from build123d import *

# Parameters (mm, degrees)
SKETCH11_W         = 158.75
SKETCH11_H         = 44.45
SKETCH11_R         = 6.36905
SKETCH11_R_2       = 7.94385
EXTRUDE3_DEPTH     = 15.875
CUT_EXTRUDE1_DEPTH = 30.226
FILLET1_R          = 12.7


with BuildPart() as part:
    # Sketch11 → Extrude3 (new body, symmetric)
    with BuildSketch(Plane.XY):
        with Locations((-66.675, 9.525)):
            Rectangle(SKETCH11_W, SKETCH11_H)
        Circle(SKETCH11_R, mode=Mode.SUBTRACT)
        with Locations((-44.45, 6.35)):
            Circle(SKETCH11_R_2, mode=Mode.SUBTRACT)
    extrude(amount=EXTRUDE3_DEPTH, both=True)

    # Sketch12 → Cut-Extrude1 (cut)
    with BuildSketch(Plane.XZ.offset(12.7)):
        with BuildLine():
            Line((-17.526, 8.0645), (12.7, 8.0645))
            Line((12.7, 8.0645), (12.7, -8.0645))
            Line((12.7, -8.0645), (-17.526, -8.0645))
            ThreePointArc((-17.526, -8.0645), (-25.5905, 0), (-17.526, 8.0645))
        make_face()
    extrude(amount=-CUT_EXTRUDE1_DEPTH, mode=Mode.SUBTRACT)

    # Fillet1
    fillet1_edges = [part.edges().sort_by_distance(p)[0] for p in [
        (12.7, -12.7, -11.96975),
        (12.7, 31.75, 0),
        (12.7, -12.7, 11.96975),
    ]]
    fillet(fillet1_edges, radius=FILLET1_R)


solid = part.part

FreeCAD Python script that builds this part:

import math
import FreeCAD as App
import Part
import Sketcher

V = App.Vector
Q = App.Units.Quantity


def edges_at(feature, points):
    """Names of the edges that pass closest to the given points."""
    edges = feature.Shape.Edges
    near = lambda p: min(range(len(edges)), key=lambda i: edges[i].distToShape(Part.Vertex(*p))[0])
    return sorted({f"Edge{near(p) + 1}" for p in points})


def add_polygon(sketch, points):
    """Adds a closed chain of lines whose ends are joined by coincident constraints."""
    first, n = sketch.GeometryCount, len(points)
    for a, b in zip(points, points[1:] + points[:1]):
        sketch.addGeometry(Part.LineSegment(App.Vector(*a, 0), App.Vector(*b, 0)), False)
    for i in range(n):
        sketch.addConstraint(Sketcher.Constraint("Coincident", first + i, 2, first + (i + 1) % n, 1))

doc = App.newDocument("Part")
params = doc.addObject("Spreadsheet::Sheet", "Params")
for row, (alias, value) in enumerate([
    ("sketch1_width", "6.25 in"),
    ("sketch1_height", "1.75 in"),
    ("pad1_length", "1.25 in"),
    ("sketch2_width", "1.19 in"),
    ("pocket1_length", "1.19 in"),
    ("fillet_radius", "0.5 in"),
], start=1):
    params.set(f"A{row}", alias)
    params.set(f"B{row}", "=" + value)
    params.setAlias(f"B{row}", alias)

body = doc.addObject("PartDesign::Body", "Body")

sketch1 = body.newObject("Sketcher::SketchObject", "Sketch")
sketch1.AttachmentSupport = (doc.getObject("XY_Plane"), [""])
sketch1.MapMode = "FlatFace"
add_polygon(sketch1, [(-146, 32), (-146, -13), (13, -13), (13, 32)])
sketch1.addGeometry(Part.Circle(V(0, 0, 0), V(0, 0, 1), 6), False)
sketch1.addGeometry(Part.Circle(V(-44, 6, 0), V(0, 0, 1), 8), False)
sketch1.addConstraint(Sketcher.Constraint("Vertical", 0))
sketch1.addConstraint(Sketcher.Constraint("Horizontal", 1))
sketch1.addConstraint(Sketcher.Constraint("Vertical", 2))
sketch1.addConstraint(Sketcher.Constraint("Horizontal", 3))
sketch1.addConstraint(Sketcher.Constraint("Coincident", 4, 3, -1, 1))
sketch1.addConstraint(Sketcher.Constraint("DistanceX", 0, 2, 5, 3, Q("4 in")))
sketch1.addConstraint(Sketcher.Constraint("DistanceY", 5, 3, 2, 2, Q("1 in")))
sketch1.addConstraint(Sketcher.Constraint("Diameter", 4, Q("0.5015 in")))
sketch1.addConstraint(Sketcher.Constraint("Diameter", 5, Q("0.6255 in")))
sketch1.addConstraint(Sketcher.Constraint("DistanceX", 1, 1, 1, 2, Q("6.25 in")))
sketch1.addConstraint(Sketcher.Constraint("DistanceY", 0, 2, 0, 1, Q("1.75 in")))
sketch1.addConstraint(Sketcher.Constraint("DistanceY", 0, 2, -1, 1, Q("0.5 in")))
sketch1.addConstraint(Sketcher.Constraint("DistanceX", -1, 1, 1, 2, Q("0.5 in")))
sketch1.setExpression("Constraints[13]", "Params.sketch1_width")
sketch1.setExpression("Constraints[14]", "Params.sketch1_height")
pad1 = body.newObject("PartDesign::Pad", "Pad")
pad1.Profile = sketch1
pad1.setExpression("Length", "Params.pad1_length")
pad1.Midplane = True

sketch2 = body.newObject("Sketcher::SketchObject", "Sketch001")
sketch2.AttachmentSupport = (doc.getObject("XZ_Plane"), [""])
sketch2.MapMode = "FlatFace"
sketch2.AttachmentOffset = App.Placement(V(0, 0, 0.5 * 25.4), App.Rotation())
sketch2.addGeometry(Part.LineSegment(V(13, 8, 0), V(-18, 8, 0)), False)
sketch2.addGeometry(Part.ArcOfCircle(Part.Circle(V(-18, 0, 0), V(0, 0, 1), 8), math.radians(90), math.radians(270)), False)
sketch2.addGeometry(Part.LineSegment(V(-18, -8, 0), V(13, -8, 0)), False)
sketch2.addGeometry(Part.LineSegment(V(13, -8, 0), V(13, 8, 0)), False)
sketch2.addConstraint(Sketcher.Constraint("Tangent", 0, 2, 1, 1))
sketch2.addConstraint(Sketcher.Constraint("Tangent", 1, 2, 2, 1))
sketch2.addConstraint(Sketcher.Constraint("Coincident", 2, 2, 3, 1))
sketch2.addConstraint(Sketcher.Constraint("Coincident", 3, 2, 0, 1))
sketch2.addConstraint(Sketcher.Constraint("Horizontal", 0))
sketch2.addConstraint(Sketcher.Constraint("Horizontal", 2))
sketch2.addConstraint(Sketcher.Constraint("Vertical", 3))
sketch2.addConstraint(Sketcher.Constraint("PointOnObject", 1, 3, -1))
sketch2.addConstraint(Sketcher.Constraint("DistanceX", 0, 2, 0, 1, Q("1.19 in")))
sketch2.addConstraint(Sketcher.Constraint("DistanceX", -1, 1, 2, 2, Q("0.5 in")))
sketch2.addConstraint(Sketcher.Constraint("Radius", 1, Q("0.3175 in")))
sketch2.setExpression("Constraints[8]", "Params.sketch2_width")
pocket1 = body.newObject("PartDesign::Pocket", "Pocket")
pocket1.Profile = sketch2
pocket1.setExpression("Length", "Params.pocket1_length")
doc.recompute()

fillet = body.newObject("PartDesign::Fillet", "Fillet")
fillet.Base = (pocket1, edges_at(pocket1, [(12.7, -12.7, -11.97), (12.7, 31.75, 0), (12.7, -12.7, 11.97)]))
fillet.setExpression("Radius", "Params.fillet_radius")

doc.recompute()
